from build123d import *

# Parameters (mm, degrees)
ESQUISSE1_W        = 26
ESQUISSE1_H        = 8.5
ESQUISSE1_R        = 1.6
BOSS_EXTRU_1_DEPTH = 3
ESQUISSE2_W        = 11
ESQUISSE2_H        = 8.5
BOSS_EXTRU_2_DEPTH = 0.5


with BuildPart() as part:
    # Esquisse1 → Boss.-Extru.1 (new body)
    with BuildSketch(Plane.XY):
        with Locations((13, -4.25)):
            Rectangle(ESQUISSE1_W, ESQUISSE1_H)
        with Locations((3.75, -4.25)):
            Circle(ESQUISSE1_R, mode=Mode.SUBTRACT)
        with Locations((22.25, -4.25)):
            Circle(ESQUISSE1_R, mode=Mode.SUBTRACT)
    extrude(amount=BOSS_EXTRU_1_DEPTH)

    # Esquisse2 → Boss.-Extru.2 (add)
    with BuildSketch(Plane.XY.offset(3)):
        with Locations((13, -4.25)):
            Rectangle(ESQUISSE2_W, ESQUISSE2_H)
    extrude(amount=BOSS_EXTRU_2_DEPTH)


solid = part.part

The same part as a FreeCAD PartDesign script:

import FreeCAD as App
import Part
import Sketcher
from FreeCAD import Vector
Q = App.Units.Quantity


def add_polygon(sketch, points):
    """Adds a closed chain of lines whose ends are joined by coincident constraints."""
    first, n = sketch.GeometryCount, len(points)
    for a, b in zip(points, points[1:] + points[:1]):
        sketch.addGeometry(Part.LineSegment(App.Vector(*a, 0), App.Vector(*b, 0)), False)
    for i in range(n):
        sketch.addConstraint(Sketcher.Constraint("Coincident", first + i, 2, first + (i + 1) % n, 1))

doc = App.newDocument("Part")
body = doc.addObject("PartDesign::Body", "Body")

# Sketch on XY plane
sketch1 = doc.addObject("Sketcher::SketchObject", "Sketch")
body.addObject(sketch1)
sketch1.AttachmentSupport = (doc.XY_Plane, [""])
sketch1.MapMode = "FlatFace"
add_polygon(sketch1, [(0, 0), (0, -8.5), (26, -8.5), (26, 0)])  # lines 0-3
sketch1.addGeometry(Part.Circle(Vector(3.8, -4.2, 0), Vector(0, 0, 1), 1.6), False)  # 4
sketch1.addGeometry(Part.Circle(Vector(22.2, -4.2, 0), Vector(0, 0, 1), 1.6), False)  # 5
sketch1.addConstraint(Sketcher.Constraint("Vertical", 0))
sketch1.addConstraint(Sketcher.Constraint("Horizontal", 1))
sketch1.addConstraint(Sketcher.Constraint("Vertical", 2))
sketch1.addConstraint(Sketcher.Constraint("Horizontal", 3))
sketch1.addConstraint(Sketcher.Constraint("Coincident", 3, 2, -1, 1))
sketch1.addConstraint(Sketcher.Constraint("Equal", 4, 5))
sketch1.addConstraint(Sketcher.Constraint("Horizontal", 4, 3, 5, 3))
sketch1.addConstraint(Sketcher.Constraint("Diameter", 4, Q("3.2 mm")))
sketch1.addConstraint(Sketcher.Constraint("DistanceX", 1, 1, 1, 2, Q("26 mm")))
sketch1.addConstraint(Sketcher.Constraint("DistanceY", 0, 2, 0, 1, Q("8.5 mm")))
sketch1.addConstraint(Sketcher.Constraint("DistanceX", 4, 3, 5, 3, Q("18.5 mm")))
sketch1.addConstraint(Sketcher.Constraint("DistanceX", -1, 1, 4, 3, Q("3.75 mm")))
sketch1.addConstraint(Sketcher.Constraint("DistanceY", 4, 3, -1, 1, Q("4.25 mm")))
pad1 = doc.addObject("PartDesign::Pad", "Pad")
body.addObject(pad1)
pad1.Profile = sketch1
pad1.Length = 3

# Sketch on XY plane
sketch2 = doc.addObject("Sketcher::SketchObject", "Sketch001")
body.addObject(sketch2)
sketch2.AttachmentSupport = (doc.XY_Plane, [""])
sketch2.MapMode = "FlatFace"
sketch2.AttachmentOffset = App.Placement(Vector(0, 0, 3), App.Rotation())
add_polygon(sketch2, [(8, 0), (8, -8), (18, -8), (18, 0)])  # lines 0-3
sketch2.addConstraint(Sketcher.Constraint("Vertical", 0))
sketch2.addConstraint(Sketcher.Constraint("Horizontal", 1))
sketch2.addConstraint(Sketcher.Constraint("Vertical", 2))
sketch2.addConstraint(Sketcher.Constraint("Horizontal", 3))
sketch2.addConstraint(Sketcher.Constraint("PointOnObject", 2, 2, -1))
sketch2.addConstraint(Sketcher.Constraint("DistanceX", 1, 1, 1, 2, Q("11 mm")))
sketch2.addConstraint(Sketcher.Constraint("DistanceY", 0, 2, 0, 1, Q("8.5 mm")))
sketch2.addConstraint(Sketcher.Constraint("DistanceX", -1, 1, 0, 2, Q("7.5 mm")))
pad2 = doc.addObject("PartDesign::Pad", "Pad001")
body.addObject(pad2)
pad2.Profile = sketch2
pad2.Length = 0.5

doc.recompute()
